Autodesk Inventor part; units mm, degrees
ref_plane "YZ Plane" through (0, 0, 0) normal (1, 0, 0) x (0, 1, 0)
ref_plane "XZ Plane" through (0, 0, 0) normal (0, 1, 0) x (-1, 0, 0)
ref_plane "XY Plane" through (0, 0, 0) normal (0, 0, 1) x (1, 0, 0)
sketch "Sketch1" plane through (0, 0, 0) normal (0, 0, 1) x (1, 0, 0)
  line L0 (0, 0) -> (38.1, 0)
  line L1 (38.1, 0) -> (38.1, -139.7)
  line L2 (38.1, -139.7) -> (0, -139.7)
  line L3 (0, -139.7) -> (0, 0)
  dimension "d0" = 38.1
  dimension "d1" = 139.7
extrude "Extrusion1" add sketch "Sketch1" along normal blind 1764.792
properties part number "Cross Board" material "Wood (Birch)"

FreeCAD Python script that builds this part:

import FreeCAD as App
import Part
import Sketcher
Q = App.Units.Quantity


def add_polygon(sketch, points):
    """Adds a closed chain of lines whose ends are joined by coincident constraints."""
    first, n = sketch.GeometryCount, len(points)
    for a, b in zip(points, points[1:] + points[:1]):
        sketch.addGeometry(Part.LineSegment(App.Vector(*a, 0), App.Vector(*b, 0)), False)
    for i in range(n):
        sketch.addConstraint(Sketcher.Constraint("Coincident", first + i, 2, first + (i + 1) % n, 1))

doc = App.newDocument("Part")
params = doc.addObject("Spreadsheet::Sheet", "Params")
for row, (alias, value) in enumerate([
    ("sketch1_width", "1.5 in"),
    ("sketch1_height", "5.5 in"),
    ("pad1_length", "69.48 in"),
], start=1):
    params.set(f"A{row}", alias)
    params.set(f"B{row}", "=" + value)
    params.setAlias(f"B{row}", alias)

body = doc.addObject("PartDesign::Body", "Body")

sketch1 = body.newObject("Sketcher::SketchObject", "Sketch")
sketch1.AttachmentSupport = (doc.getObject("XY_Plane"), [""])
sketch1.MapMode = "FlatFace"
add_polygon(sketch1, [(38, 0), (0, 0), (0, -140), (38, -140)])
sketch1.addConstraint([
    Sketcher.Constraint("Horizontal", 0),
    Sketcher.Constraint("Vertical", 1),
    Sketcher.Constraint("Horizontal", 2),
    Sketcher.Constraint("Vertical", 3),
    Sketcher.Constraint("Coincident", 0, 2, -1, 1),
    Sketcher.Constraint("DistanceX", 0, 2, 0, 1, Q("1.5 in")),
    Sketcher.Constraint("DistanceY", 1, 2, 1, 1, Q("5.5 in")),
])
sketch1.setExpression("Constraints[9]", "Params.sketch1_width")
sketch1.setExpression("Constraints[10]", "Params.sketch1_height")
pad1 = body.newObject("PartDesign::Pad", "Pad")
pad1.Profile = sketch1
pad1.setExpression("Length", "Params.pad1_length")

doc.recompute()
